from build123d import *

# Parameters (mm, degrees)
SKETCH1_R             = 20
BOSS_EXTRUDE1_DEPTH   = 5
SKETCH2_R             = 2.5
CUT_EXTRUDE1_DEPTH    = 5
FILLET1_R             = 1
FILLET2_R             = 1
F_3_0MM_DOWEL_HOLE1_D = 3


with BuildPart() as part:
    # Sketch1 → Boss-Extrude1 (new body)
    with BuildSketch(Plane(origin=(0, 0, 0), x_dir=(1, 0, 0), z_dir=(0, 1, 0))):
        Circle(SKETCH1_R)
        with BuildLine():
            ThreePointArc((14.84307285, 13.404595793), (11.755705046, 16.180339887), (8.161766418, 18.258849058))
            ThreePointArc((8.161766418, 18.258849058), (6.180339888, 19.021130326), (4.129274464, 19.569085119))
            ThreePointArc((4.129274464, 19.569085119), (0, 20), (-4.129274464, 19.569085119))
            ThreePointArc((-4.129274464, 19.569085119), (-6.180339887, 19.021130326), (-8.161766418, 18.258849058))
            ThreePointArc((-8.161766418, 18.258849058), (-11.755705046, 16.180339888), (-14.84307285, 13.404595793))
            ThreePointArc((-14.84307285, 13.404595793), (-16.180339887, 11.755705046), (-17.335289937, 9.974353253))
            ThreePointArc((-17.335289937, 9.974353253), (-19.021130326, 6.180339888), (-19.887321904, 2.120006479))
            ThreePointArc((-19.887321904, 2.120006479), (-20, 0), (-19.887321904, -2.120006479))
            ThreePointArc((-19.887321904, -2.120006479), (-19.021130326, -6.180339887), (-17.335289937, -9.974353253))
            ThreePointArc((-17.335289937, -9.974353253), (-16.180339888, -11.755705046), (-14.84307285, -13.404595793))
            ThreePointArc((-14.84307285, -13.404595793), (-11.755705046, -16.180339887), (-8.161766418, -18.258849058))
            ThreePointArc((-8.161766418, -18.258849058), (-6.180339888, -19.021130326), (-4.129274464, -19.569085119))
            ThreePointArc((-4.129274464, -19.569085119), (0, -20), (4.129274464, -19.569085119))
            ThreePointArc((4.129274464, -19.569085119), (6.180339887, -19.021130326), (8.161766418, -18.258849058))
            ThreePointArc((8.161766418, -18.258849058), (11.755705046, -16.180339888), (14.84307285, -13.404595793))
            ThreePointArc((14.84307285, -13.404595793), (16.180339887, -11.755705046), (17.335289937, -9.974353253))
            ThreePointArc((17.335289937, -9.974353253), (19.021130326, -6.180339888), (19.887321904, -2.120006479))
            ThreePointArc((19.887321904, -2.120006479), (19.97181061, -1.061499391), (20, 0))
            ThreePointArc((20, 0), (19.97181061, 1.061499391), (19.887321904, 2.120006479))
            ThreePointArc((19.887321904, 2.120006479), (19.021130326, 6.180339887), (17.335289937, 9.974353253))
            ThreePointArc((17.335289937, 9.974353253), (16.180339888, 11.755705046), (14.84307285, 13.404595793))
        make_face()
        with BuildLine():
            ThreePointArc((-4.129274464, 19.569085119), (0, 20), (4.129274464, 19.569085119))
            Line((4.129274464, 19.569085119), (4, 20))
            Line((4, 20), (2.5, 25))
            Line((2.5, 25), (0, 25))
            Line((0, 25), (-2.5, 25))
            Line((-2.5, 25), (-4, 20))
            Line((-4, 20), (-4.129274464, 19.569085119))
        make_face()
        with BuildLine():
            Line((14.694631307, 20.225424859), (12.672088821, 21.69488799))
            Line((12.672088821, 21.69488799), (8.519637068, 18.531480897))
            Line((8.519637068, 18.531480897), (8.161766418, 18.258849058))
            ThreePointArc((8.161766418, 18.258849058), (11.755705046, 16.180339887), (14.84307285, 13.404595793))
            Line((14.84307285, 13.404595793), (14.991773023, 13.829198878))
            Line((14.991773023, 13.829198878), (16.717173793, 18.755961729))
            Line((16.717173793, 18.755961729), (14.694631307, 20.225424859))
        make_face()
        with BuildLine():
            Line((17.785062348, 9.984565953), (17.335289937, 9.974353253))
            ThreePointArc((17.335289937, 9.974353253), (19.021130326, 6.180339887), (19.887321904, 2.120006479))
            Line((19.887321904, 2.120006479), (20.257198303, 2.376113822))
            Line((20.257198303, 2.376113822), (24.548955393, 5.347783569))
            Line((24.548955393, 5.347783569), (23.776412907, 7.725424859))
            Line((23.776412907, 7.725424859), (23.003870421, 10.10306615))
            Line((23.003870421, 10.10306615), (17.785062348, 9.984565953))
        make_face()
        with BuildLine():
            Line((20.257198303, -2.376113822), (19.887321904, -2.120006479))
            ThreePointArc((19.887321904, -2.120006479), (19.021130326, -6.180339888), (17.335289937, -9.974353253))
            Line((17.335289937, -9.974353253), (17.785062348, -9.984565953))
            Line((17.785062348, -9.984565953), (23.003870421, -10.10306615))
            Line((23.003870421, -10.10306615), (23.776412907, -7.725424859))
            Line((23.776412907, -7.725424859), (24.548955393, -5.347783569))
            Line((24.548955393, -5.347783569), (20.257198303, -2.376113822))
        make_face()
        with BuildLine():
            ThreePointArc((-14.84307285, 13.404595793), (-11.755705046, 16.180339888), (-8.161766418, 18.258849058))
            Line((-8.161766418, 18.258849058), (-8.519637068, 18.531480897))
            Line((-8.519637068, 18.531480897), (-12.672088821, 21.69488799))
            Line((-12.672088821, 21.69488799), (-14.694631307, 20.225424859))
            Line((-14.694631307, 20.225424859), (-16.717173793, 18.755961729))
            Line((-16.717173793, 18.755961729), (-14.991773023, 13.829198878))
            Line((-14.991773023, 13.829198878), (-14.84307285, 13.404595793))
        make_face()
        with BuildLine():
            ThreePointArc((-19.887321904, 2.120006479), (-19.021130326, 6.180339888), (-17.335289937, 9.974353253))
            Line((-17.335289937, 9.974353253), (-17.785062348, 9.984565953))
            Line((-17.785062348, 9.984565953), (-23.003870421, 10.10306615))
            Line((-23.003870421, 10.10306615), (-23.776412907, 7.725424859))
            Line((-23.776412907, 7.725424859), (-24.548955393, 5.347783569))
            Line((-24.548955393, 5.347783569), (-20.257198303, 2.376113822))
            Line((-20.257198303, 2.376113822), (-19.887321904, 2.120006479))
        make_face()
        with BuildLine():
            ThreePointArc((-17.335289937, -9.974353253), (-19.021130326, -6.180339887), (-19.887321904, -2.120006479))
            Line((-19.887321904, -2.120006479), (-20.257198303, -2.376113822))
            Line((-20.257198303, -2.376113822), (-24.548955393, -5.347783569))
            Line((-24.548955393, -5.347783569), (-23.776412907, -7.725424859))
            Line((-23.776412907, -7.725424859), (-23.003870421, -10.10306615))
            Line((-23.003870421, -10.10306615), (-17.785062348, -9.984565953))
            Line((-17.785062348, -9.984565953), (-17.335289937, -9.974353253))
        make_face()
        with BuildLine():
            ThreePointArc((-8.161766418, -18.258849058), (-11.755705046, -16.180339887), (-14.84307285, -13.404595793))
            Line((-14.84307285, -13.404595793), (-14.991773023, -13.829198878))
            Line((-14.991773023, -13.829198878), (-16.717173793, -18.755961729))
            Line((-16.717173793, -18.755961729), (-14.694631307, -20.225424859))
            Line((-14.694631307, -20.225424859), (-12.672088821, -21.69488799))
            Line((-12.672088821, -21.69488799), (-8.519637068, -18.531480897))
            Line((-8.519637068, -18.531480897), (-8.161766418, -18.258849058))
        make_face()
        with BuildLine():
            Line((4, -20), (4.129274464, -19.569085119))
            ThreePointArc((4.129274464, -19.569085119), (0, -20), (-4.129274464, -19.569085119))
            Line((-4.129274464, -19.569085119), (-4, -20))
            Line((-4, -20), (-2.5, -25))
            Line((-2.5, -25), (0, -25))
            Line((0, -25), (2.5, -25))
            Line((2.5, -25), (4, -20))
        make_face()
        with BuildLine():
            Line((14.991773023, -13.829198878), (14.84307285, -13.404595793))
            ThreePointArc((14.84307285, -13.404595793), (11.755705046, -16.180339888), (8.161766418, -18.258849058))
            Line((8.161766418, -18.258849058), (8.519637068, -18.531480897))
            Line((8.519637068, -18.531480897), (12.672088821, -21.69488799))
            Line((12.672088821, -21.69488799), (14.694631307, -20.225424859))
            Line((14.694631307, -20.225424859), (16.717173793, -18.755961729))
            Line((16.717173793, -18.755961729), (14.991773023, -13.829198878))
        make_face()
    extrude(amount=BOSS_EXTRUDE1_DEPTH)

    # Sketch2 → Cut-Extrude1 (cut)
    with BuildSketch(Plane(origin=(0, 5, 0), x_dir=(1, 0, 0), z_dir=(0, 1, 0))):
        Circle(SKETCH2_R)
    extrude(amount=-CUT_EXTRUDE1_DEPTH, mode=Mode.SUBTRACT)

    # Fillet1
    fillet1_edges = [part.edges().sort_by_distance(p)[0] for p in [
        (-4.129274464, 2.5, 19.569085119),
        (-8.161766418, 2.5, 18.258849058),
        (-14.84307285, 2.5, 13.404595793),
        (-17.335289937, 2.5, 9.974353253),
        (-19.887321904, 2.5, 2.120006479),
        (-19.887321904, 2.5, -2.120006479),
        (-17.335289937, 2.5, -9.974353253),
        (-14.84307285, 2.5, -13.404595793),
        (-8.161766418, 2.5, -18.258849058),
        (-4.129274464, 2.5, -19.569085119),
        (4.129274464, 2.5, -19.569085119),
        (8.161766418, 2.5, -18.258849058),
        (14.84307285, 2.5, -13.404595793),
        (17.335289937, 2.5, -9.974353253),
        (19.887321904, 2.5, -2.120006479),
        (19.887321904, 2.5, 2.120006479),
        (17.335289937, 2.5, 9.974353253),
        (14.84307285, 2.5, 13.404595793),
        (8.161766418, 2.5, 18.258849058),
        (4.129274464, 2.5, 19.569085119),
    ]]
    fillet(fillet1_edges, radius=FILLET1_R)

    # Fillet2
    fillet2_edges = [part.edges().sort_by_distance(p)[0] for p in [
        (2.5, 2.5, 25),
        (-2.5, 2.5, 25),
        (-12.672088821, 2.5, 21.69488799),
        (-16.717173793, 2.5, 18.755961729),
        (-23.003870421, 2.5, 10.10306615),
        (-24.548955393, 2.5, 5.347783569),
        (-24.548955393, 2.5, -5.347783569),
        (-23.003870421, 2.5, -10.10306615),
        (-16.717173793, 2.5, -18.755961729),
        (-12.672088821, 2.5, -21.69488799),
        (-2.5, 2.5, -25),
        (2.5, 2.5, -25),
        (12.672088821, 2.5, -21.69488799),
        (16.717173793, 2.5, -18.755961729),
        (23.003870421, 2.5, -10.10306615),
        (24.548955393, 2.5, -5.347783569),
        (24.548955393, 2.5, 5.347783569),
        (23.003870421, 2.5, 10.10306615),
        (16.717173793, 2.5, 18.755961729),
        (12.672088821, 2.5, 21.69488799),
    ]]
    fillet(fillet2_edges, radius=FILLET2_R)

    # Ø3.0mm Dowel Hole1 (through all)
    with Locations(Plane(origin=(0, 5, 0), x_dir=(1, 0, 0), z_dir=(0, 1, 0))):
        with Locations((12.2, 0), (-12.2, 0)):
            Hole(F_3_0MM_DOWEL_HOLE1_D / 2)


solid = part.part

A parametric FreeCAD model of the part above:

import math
import FreeCAD as App
import Part
import Sketcher
from FreeCAD import Vector
Q = App.Units.Quantity


def edges_at(feature, points):
    """Names of the edges that pass closest to the given points."""
    edges = feature.Shape.Edges
    near = lambda p: min(range(len(edges)), key=lambda i: edges[i].distToShape(Part.Vertex(*p))[0])
    return sorted({f"Edge{near(p) + 1}" for p in points})

doc = App.newDocument("Part")
params = doc.addObject("Spreadsheet::Sheet", "Params")
for row, (alias, value) in enumerate([
    ("sketch1_radius", "20 mm"),
    ("sketch1_width", "5 mm"),
    ("sketch1_length", "2.5 mm"),
    ("pad1_length", "5 mm"),
    ("sketch2_diameter", "5 mm"),
    ("pocket1_length", "5 mm"),
    ("fillet_radius", "1 mm"),
    ("fillet2_radius", "1 mm"),
    ("sketch3_diameter", "3 mm"),
    ("hole_diameter", "3 mm"),
], start=1):
    params.set(f"A{row}", alias)
    params.set(f"B{row}", "=" + value)
    params.setAlias(f"B{row}", alias)

body = doc.addObject("PartDesign::Body", "Body")

sketch1 = body.newObject("Sketcher::SketchObject", "Sketch")
sketch1.AttachmentSupport = (doc.getObject("XZ_Plane"), [""])
sketch1.MapMode = "FlatFace"
sketch1.addGeometry([
    Part.ArcOfCircle(Part.Circle(Vector(0, 0, 0), Vector(0, 0, 1), 20), math.radians(-42.08), math.radians(-29.92)),
    Part.LineSegment(Vector(14.84, -13.4, 0), Vector(14.99, -13.83, 0)),
    Part.LineSegment(Vector(14.99, -13.83, 0), Vector(16.72, -18.76, 0)),
    Part.LineSegment(Vector(16.72, -18.76, 0), Vector(14.69, -20.23, 0)),
    Part.LineSegment(Vector(14.69, -20.23, 0), Vector(12.67, -21.69, 0)),
    Part.LineSegment(Vector(12.67, -21.69, 0), Vector(8.52, -18.53, 0)),
    Part.LineSegment(Vector(8.52, -18.53, 0), Vector(8.16, -18.26, 0)),
    Part.ArcOfCircle(Part.Circle(Vector(0, 0, 0), Vector(0, 0, 1), 20), math.radians(-78.08), math.radians(-65.92)),
    Part.LineSegment(Vector(4.13, -19.57, 0), Vector(4, -20, 0)),
    Part.LineSegment(Vector(4, -20, 0), Vector(2.5, -25, 0)),
    Part.LineSegment(Vector(2.5, -25, 0), Vector(-2.5, -25, 0)),
    Part.LineSegment(Vector(-2.5, -25, 0), Vector(-4, -20, 0)),
    Part.LineSegment(Vector(-4, -20, 0), Vector(-4.13, -19.57, 0)),
    Part.ArcOfCircle(Part.Circle(Vector(0, 0, 0), Vector(0, 0, 1), 20), math.radians(-114.08), math.radians(-101.92)),
    Part.LineSegment(Vector(-8.16, -18.26, 0), Vector(-8.52, -18.53, 0)),
    Part.LineSegment(Vector(-8.52, -18.53, 0), Vector(-12.67, -21.69, 0)),
    Part.LineSegment(Vector(-12.67, -21.69, 0), Vector(-14.69, -20.23, 0)),
    Part.LineSegment(Vector(-14.69, -20.23, 0), Vector(-16.72, -18.76, 0)),
    Part.LineSegment(Vector(-16.72, -18.76, 0), Vector(-14.99, -13.83, 0)),
    Part.LineSegment(Vector(-14.99, -13.83, 0), Vector(-14.84, -13.4, 0)),
    Part.ArcOfCircle(Part.Circle(Vector(0, 0, 0), Vector(0, 0, 1), 20), math.radians(-150.08), math.radians(-137.92)),
    Part.LineSegment(Vector(-17.34, -9.97, 0), Vector(-17.79, -9.98, 0)),
    Part.LineSegment(Vector(-17.79, -9.98, 0), Vector(-23, -10.1, 0)),
    Part.LineSegment(Vector(-23, -10.1, 0), Vector(-23.78, -7.73, 0)),
    Part.LineSegment(Vector(-23.78, -7.73, 0), Vector(-24.55, -5.35, 0)),
    Part.LineSegment(Vector(-24.55, -5.35, 0), Vector(-20.26, -2.38, 0)),
    Part.LineSegment(Vector(-20.26, -2.38, 0), Vector(-19.89, -2.12, 0)),
    Part.ArcOfCircle(Part.Circle(Vector(0, 0, 0), Vector(0, 0, 1), 20), math.radians(173.92), math.radians(186.08)),
    Part.LineSegment(Vector(-19.89, 2.12, 0), Vector(-20.26, 2.38, 0)),
    Part.LineSegment(Vector(-20.26, 2.38, 0), Vector(-24.55, 5.35, 0)),
    Part.LineSegment(Vector(-24.55, 5.35, 0), Vector(-23.78, 7.73, 0)),
    Part.LineSegment(Vector(-23.78, 7.73, 0), Vector(-23, 10.1, 0)),
    Part.LineSegment(Vector(-23, 10.1, 0), Vector(-17.79, 9.98, 0)),
    Part.LineSegment(Vector(-17.79, 9.98, 0), Vector(-17.34, 9.97, 0)),
    Part.ArcOfCircle(Part.Circle(Vector(0, 0, 0), Vector(0, 0, 1), 20), math.radians(137.92), math.radians(150.08)),
    Part.LineSegment(Vector(-14.84, 13.4, 0), Vector(-14.99, 13.83, 0)),
    Part.LineSegment(Vector(-14.99, 13.83, 0), Vector(-16.72, 18.76, 0)),
    Part.LineSegment(Vector(-16.72, 18.76, 0), Vector(-14.69, 20.23, 0)),
    Part.LineSegment(Vector(-14.69, 20.23, 0), Vector(-12.67, 21.69, 0)),
    Part.LineSegment(Vector(-12.67, 21.69, 0), Vector(-8.52, 18.53, 0)),
    Part.LineSegment(Vector(-8.52, 18.53, 0), Vector(-8.16, 18.26, 0)),
    Part.ArcOfCircle(Part.Circle(Vector(0, 0, 0), Vector(0, 0, 1), 20), math.radians(101.92), math.radians(114.08)),
    Part.LineSegment(Vector(-4.13, 19.57, 0), Vector(-4, 20, 0)),
    Part.LineSegment(Vector(-4, 20, 0), Vector(-2.5, 25, 0)),
    Part.LineSegment(Vector(-2.5, 25, 0), Vector(2.5, 25, 0)),
    Part.LineSegment(Vector(2.5, 25, 0), Vector(4, 20, 0)),
    Part.LineSegment(Vector(4, 20, 0), Vector(4.13, 19.57, 0)),
    Part.ArcOfCircle(Part.Circle(Vector(0, 0, 0), Vector(0, 0, 1), 20), math.radians(65.92), math.radians(78.08)),
    Part.LineSegment(Vector(8.16, 18.26, 0), Vector(8.52, 18.53, 0)),
    Part.LineSegment(Vector(8.52, 18.53, 0), Vector(12.67, 21.69, 0)),
    Part.LineSegment(Vector(12.67, 21.69, 0), Vector(14.69, 20.23, 0)),
    Part.LineSegment(Vector(14.69, 20.23, 0), Vector(16.72, 18.76, 0)),
    Part.LineSegment(Vector(16.72, 18.76, 0), Vector(14.99, 13.83, 0)),
    Part.LineSegment(Vector(14.99, 13.83, 0), Vector(14.84, 13.4, 0)),
    Part.ArcOfCircle(Part.Circle(Vector(0, 0, 0), Vector(0, 0, 1), 20), math.radians(29.92), math.radians(42.08)),
    Part.LineSegment(Vector(17.34, 9.97, 0), Vector(17.79, 9.98, 0)),
    Part.LineSegment(Vector(17.79, 9.98, 0), Vector(23, 10.1, 0)),
    Part.LineSegment(Vector(23, 10.1, 0), Vector(23.78, 7.73, 0)),
    Part.LineSegment(Vector(23.78, 7.73, 0), Vector(24.55, 5.35, 0)),
    Part.LineSegment(Vector(24.55, 5.35, 0), Vector(20.26, 2.38, 0)),
    Part.LineSegment(Vector(20.26, 2.38, 0), Vector(19.89, 2.12, 0)),
    Part.ArcOfCircle(Part.Circle(Vector(0, 0, 0), Vector(0, 0, 1), 20), math.radians(-6.08), math.radians(6.08)),
    Part.LineSegment(Vector(19.89, -2.12, 0), Vector(20.26, -2.38, 0)),
    Part.LineSegment(Vector(20.26, -2.38, 0), Vector(24.55, -5.35, 0)),
    Part.LineSegment(Vector(24.55, -5.35, 0), Vector(23.78, -7.73, 0)),
    Part.LineSegment(Vector(23.78, -7.73, 0), Vector(23, -10.1, 0)),
    Part.LineSegment(Vector(23, -10.1, 0), Vector(17.79, -9.98, 0)),
    Part.LineSegment(Vector(17.79, -9.98, 0), Vector(17.34, -9.97, 0)),
], False)
sketch1.addConstraint([
    Sketcher.Constraint("Coincident", 0, 1, 1, 1),
    Sketcher.Constraint("Coincident", 1, 2, 2, 1),
    Sketcher.Constraint("Coincident", 2, 2, 3, 1),
    Sketcher.Constraint("Coincident", 3, 2, 4, 1),
    Sketcher.Constraint("Coincident", 4, 2, 5, 1),
    Sketcher.Constraint("Coincident", 5, 2, 6, 1),
    Sketcher.Constraint("Coincident", 6, 2, 7, 2),
    Sketcher.Constraint("Coincident", 7, 1, 8, 1),
    Sketcher.Constraint("Coincident", 8, 2, 9, 1),
    Sketcher.Constraint("Coincident", 9, 2, 10, 1),
    Sketcher.Constraint("Coincident", 10, 2, 11, 1),
    Sketcher.Constraint("Coincident", 11, 2, 12, 1),
    Sketcher.Constraint("Coincident", 12, 2, 13, 2),
    Sketcher.Constraint("Coincident", 13, 1, 14, 1),
    Sketcher.Constraint("Coincident", 14, 2, 15, 1),
    Sketcher.Constraint("Coincident", 15, 2, 16, 1),
    Sketcher.Constraint("Coincident", 16, 2, 17, 1),
    Sketcher.Constraint("Coincident", 17, 2, 18, 1),
    Sketcher.Constraint("Coincident", 18, 2, 19, 1),
    Sketcher.Constraint("Coincident", 19, 2, 20, 2),
    Sketcher.Constraint("Coincident", 20, 1, 21, 1),
    Sketcher.Constraint("Coincident", 21, 2, 22, 1),
    Sketcher.Constraint("Coincident", 22, 2, 23, 1),
    Sketcher.Constraint("Coincident", 23, 2, 24, 1),
    Sketcher.Constraint("Coincident", 24, 2, 25, 1),
    Sketcher.Constraint("Coincident", 25, 2, 26, 1),
    Sketcher.Constraint("Coincident", 26, 2, 27, 2),
    Sketcher.Constraint("Coincident", 27, 1, 28, 1),
    Sketcher.Constraint("Coincident", 28, 2, 29, 1),
    Sketcher.Constraint("Coincident", 29, 2, 30, 1),
    Sketcher.Constraint("Coincident", 30, 2, 31, 1),
    Sketcher.Constraint("Coincident", 31, 2, 32, 1),
    Sketcher.Constraint("Coincident", 32, 2, 33, 1),
    Sketcher.Constraint("Coincident", 33, 2, 34, 2),
    Sketcher.Constraint("Coincident", 34, 1, 35, 1),
    Sketcher.Constraint("Coincident", 35, 2, 36, 1),
    Sketcher.Constraint("Coincident", 36, 2, 37, 1),
    Sketcher.Constraint("Coincident", 37, 2, 38, 1),
    Sketcher.Constraint("Coincident", 38, 2, 39, 1),
    Sketcher.Constraint("Coincident", 39, 2, 40, 1),
    Sketcher.Constraint("Coincident", 40, 2, 41, 2),
    Sketcher.Constraint("Coincident", 41, 1, 42, 1),
    Sketcher.Constraint("Coincident", 42, 2, 43, 1),
    Sketcher.Constraint("Coincident", 43, 2, 44, 1),
    Sketcher.Constraint("Coincident", 44, 2, 45, 1),
    Sketcher.Constraint("Coincident", 45, 2, 46, 1),
    Sketcher.Constraint("Coincident", 46, 2, 47, 2),
    Sketcher.Constraint("Coincident", 47, 1, 48, 1),
    Sketcher.Constraint("Coincident", 48, 2, 49, 1),
    Sketcher.Constraint("Coincident", 49, 2, 50, 1),
    Sketcher.Constraint("Coincident", 50, 2, 51, 1),
    Sketcher.Constraint("Coincident", 51, 2, 52, 1),
    Sketcher.Constraint("Coincident", 52, 2, 53, 1),
    Sketcher.Constraint("Coincident", 53, 2, 54, 2),
    Sketcher.Constraint("Coincident", 54, 1, 55, 1),
    Sketcher.Constraint("Coincident", 55, 2, 56, 1),
    Sketcher.Constraint("Coincident", 56, 2, 57, 1),
    Sketcher.Constraint("Coincident", 57, 2, 58, 1),
    Sketcher.Constraint("Coincident", 58, 2, 59, 1),
    Sketcher.Constraint("Coincident", 59, 2, 60, 1),
    Sketcher.Constraint("Coincident", 60, 2, 61, 2),
    Sketcher.Constraint("Coincident", 61, 1, 62, 1),
    Sketcher.Constraint("Coincident", 62, 2, 63, 1),
    Sketcher.Constraint("Coincident", 63, 2, 64, 1),
    Sketcher.Constraint("Coincident", 64, 2, 65, 1),
    Sketcher.Constraint("Coincident", 65, 2, 66, 1),
    Sketcher.Constraint("Coincident", 66, 2, 67, 1),
    Sketcher.Constraint("Coincident", 67, 2, 0, 2),
    Sketcher.Constraint("Horizontal", 10),
    Sketcher.Constraint("Horizontal", 44),
    Sketcher.Constraint("Coincident", 0, 3, -1, 1),
    Sketcher.Constraint("Coincident", 7, 3, -1, 1),
    Sketcher.Constraint("Coincident", 13, 3, -1, 1),
    Sketcher.Constraint("Coincident", 20, 3, -1, 1),
    Sketcher.Constraint("Coincident", 27, 3, -1, 1),
    Sketcher.Constraint("Coincident", 34, 3, -1, 1),
    Sketcher.Constraint("Coincident", 41, 3, -1, 1),
    Sketcher.Constraint("Coincident", 47, 3, -1, 1),
    Sketcher.Constraint("Coincident", 54, 3, -1, 1),
    Sketcher.Constraint("Coincident", 61, 3, -1, 1),
    Sketcher.Constraint("Equal", 0, 7),
    Sketcher.Constraint("Equal", 7, 13),
    Sketcher.Constraint("Equal", 13, 20),
    Sketcher.Constraint("Equal", 20, 27),
    Sketcher.Constraint("Equal", 27, 34),
    Sketcher.Constraint("Equal", 34, 41),
    Sketcher.Constraint("Equal", 41, 47),
    Sketcher.Constraint("Equal", 47, 54),
    Sketcher.Constraint("Equal", 54, 61),
    Sketcher.Constraint("Symmetric", 1, 2, 35, 2, -1, 1),
    Sketcher.Constraint("Symmetric", 2, 2, 36, 2, -1, 1),
    Sketcher.Constraint("Symmetric", 3, 2, 37, 2, -1, 1),
    Sketcher.Constraint("Symmetric", 4, 2, 38, 2, -1, 1),
    Sketcher.Constraint("Symmetric", 5, 2, 39, 2, -1, 1),
    Sketcher.Constraint("Symmetric", 8, 2, 42, 2, -1, 1),
    Sketcher.Constraint("Symmetric", 9, 2, 43, 2, -1, 1),
    Sketcher.Constraint("Symmetric", 11, 2, 45, 2, -1, 1),
    Sketcher.Constraint("Symmetric", 14, 2, 48, 2, -1, 1),
    Sketcher.Constraint("Symmetric", 15, 2, 49, 2, -1, 1),
    Sketcher.Constraint("Symmetric", 16, 2, 50, 2, -1, 1),
    Sketcher.Constraint("Symmetric", 17, 2, 51, 2, -1, 1),
    Sketcher.Constraint("Symmetric", 18, 2, 52, 2, -1, 1),
    Sketcher.Constraint("Symmetric", 21, 2, 55, 2, -1, 1),
    Sketcher.Constraint("Symmetric", 22, 2, 56, 2, -1, 1),
    Sketcher.Constraint("Symmetric", 23, 2, 57, 2, -1, 1),
    Sketcher.Constraint("Symmetric", 24, 2, 58, 2, -1, 1),
    Sketcher.Constraint("Symmetric", 25, 2, 59, 2, -1, 1),
    Sketcher.Constraint("Symmetric", 28, 2, 62, 2, -1, 1),
    Sketcher.Constraint("Symmetric", 29, 2, 63, 2, -1, 1),
    Sketcher.Constraint("Symmetric", 30, 2, 64, 2, -1, 1),
    Sketcher.Constraint("Symmetric", 31, 2, 65, 2, -1, 1),
    Sketcher.Constraint("Symmetric", 32, 2, 66, 2, -1, 1),
    Sketcher.Constraint("Symmetric", 8, 2, 11, 2, -2),
    Sketcher.Constraint("Symmetric", 5, 2, 14, 2, -2),
    Sketcher.Constraint("Symmetric", 4, 2, 15, 2, -2),
    Sketcher.Constraint("Symmetric", 3, 2, 16, 2, -2),
    Sketcher.Constraint("Symmetric", 2, 2, 17, 2, -2),
    Sketcher.Constraint("Symmetric", 1, 2, 18, 2, -2),
    Sketcher.Constraint("Symmetric", 32, 2, 55, 2, -2),
    Sketcher.Constraint("Symmetric", 31, 2, 56, 2, -2),
    Sketcher.Constraint("Symmetric", 30, 2, 57, 2, -2),
    Sketcher.Constraint("Symmetric", 29, 2, 58, 2, -2),
    Sketcher.Constraint("Symmetric", 28, 2, 59, 2, -2),
    Sketcher.Constraint("Parallel", 1, 2),
    Sketcher.Constraint("Parallel", 3, 4),
    Sketcher.Constraint("Parallel", 5, 6),
    Sketcher.Constraint("Parallel", 8, 9),
    Sketcher.Constraint("Parallel", 11, 12),
    Sketcher.Constraint("Parallel", 14, 15),
    Sketcher.Constraint("Parallel", 18, 19),
    Sketcher.Constraint("Parallel", 21, 22),
    Sketcher.Constraint("Parallel", 23, 24),
    Sketcher.Constraint("Parallel", 25, 26),
    Sketcher.Constraint("Parallel", 28, 29),
    Sketcher.Constraint("Parallel", 32, 33),
    Sketcher.Constraint("Parallel", 2, 35),
    Sketcher.Constraint("Parallel", 39, 40),
    Sketcher.Constraint("Parallel", 9, 42),
    Sketcher.Constraint("Parallel", 12, 45),
    Sketcher.Constraint("Parallel", 45, 46),
    Sketcher.Constraint("Parallel", 15, 48),
    Sketcher.Constraint("Parallel", 52, 53),
    Sketcher.Constraint("Parallel", 22, 55),
    Sketcher.Constraint("Parallel", 59, 60),
    Sketcher.Constraint("Parallel", 29, 62),
    Sketcher.Constraint("Parallel", 66, 67),
    Sketcher.Constraint("Horizontal", 7, 1, 12, 2),
    Sketcher.Constraint("Equal", 3, 4),
    Sketcher.Constraint("Equal", 2, 5),
    Sketcher.Constraint("Equal", 1, 6),
    Sketcher.Constraint("Equal", 6, 8),
    Sketcher.Constraint("Equal", 5, 9),
    Sketcher.Constraint("Equal", 19, 21),
    Sketcher.Constraint("Equal", 18, 22),
    Sketcher.Constraint("Equal", 17, 23),
    Sketcher.Constraint("Equal", 23, 24),
    Sketcher.Constraint("Equal", 22, 25),
    Sketcher.Constraint("Equal", 21, 26),
    Sketcher.Constraint("Radius", 0, 20.0),
    Sketcher.Constraint("DistanceX", 10, 2, 10, 1, 5.0),
    Sketcher.Constraint("Angle", 3, Q("-144 deg")),
    Sketcher.Constraint("Angle", 23, Q("108 deg")),
    Sketcher.Constraint("DistanceX", -1, 1, 8, 2, 4.0),
    Sketcher.Constraint("DistanceY", 8, 2, -1, 1, 20.0),
    Sketcher.Constraint("DistanceY", 9, 2, -1, 1, 25.0),
    Sketcher.Constraint("Distance", 3, 2.5),
    Sketcher.Constraint("DistanceY", 1, 2, -1, 1, 13.829199),
    Sketcher.Constraint("DistanceX", 25, 2, -1, 1, 20.257198),
    Sketcher.Constraint("DistanceY", 2, 2, -1, 1, 18.755962),
    Sketcher.Constraint("DistanceX", 20, 1, -1, 1, 17.33529),
])
sketch1.setExpression("Constraints[158]", "Params.sketch1_radius")
sketch1.setExpression("Constraints[159]", "Params.sketch1_width")
sketch1.setExpression("Constraints[165]", "Params.sketch1_length")
pad1 = body.newObject("PartDesign::Pad", "Pad")
pad1.Profile = sketch1
pad1.setExpression("Length", "Params.pad1_length")
pad1.Reversed = True

sketch2 = body.newObject("Sketcher::SketchObject", "Sketch001")
sketch2.AttachmentSupport = (doc.getObject("XZ_Plane"), [""])
sketch2.MapMode = "FlatFace"
sketch2.AttachmentOffset = App.Placement(Vector(0, 0, -5), App.Rotation())
sketch2.addGeometry(Part.Circle(Vector(0, 0, 0), Vector(0, 0, 1), 2.5), False)
sketch2.addConstraint([
    Sketcher.Constraint("Coincident", 0, 3, -1, 1),
    Sketcher.Constraint("Diameter", 0, 5.0),
])
sketch2.setExpression("Constraints[1]", "Params.sketch2_diameter")
pocket1 = body.newObject("PartDesign::Pocket", "Pocket")
pocket1.Profile = sketch2
pocket1.setExpression("Length", "Params.pocket1_length")
pocket1.Reversed = True
doc.recompute()

fillet = body.newObject("PartDesign::Fillet", "Fillet")
fillet.Base = (pocket1, edges_at(pocket1, [
    (-4.129, 2.5, 19.569),
    (-8.162, 2.5, 18.259),
    (-14.843, 2.5, 13.405),
    (-17.335, 2.5, 9.974),
    (-19.887, 2.5, 2.12),
    (-19.887, 2.5, -2.12),
    (-17.335, 2.5, -9.974),
    (-14.843, 2.5, -13.405),
    (-8.162, 2.5, -18.259),
    (-4.129, 2.5, -19.569),
    (4.129, 2.5, -19.569),
    (8.162, 2.5, -18.259),
    (14.843, 2.5, -13.405),
    (17.335, 2.5, -9.974),
    (19.887, 2.5, -2.12),
    (19.887, 2.5, 2.12),
    (17.335, 2.5, 9.974),
    (14.843, 2.5, 13.405),
    (8.162, 2.5, 18.259),
    (4.129, 2.5, 19.569),
]))
fillet.setExpression("Radius", "Params.fillet_radius")
doc.recompute()

fillet2 = body.newObject("PartDesign::Fillet", "Fillet001")
fillet2.Base = (fillet, edges_at(fillet, [
    (2.5, 2.5, 25),
    (-2.5, 2.5, 25),
    (-12.672, 2.5, 21.695),
    (-16.717, 2.5, 18.756),
    (-23.004, 2.5, 10.103),
    (-24.549, 2.5, 5.348),
    (-24.549, 2.5, -5.348),
    (-23.004, 2.5, -10.103),
    (-16.717, 2.5, -18.756),
    (-12.672, 2.5, -21.695),
    (-2.5, 2.5, -25),
    (2.5, 2.5, -25),
    (12.672, 2.5, -21.695),
    (16.717, 2.5, -18.756),
    (23.004, 2.5, -10.103),
    (24.549, 2.5, -5.348),
    (24.549, 2.5, 5.348),
    (23.004, 2.5, 10.103),
    (16.717, 2.5, 18.756),
    (12.672, 2.5, 21.695),
]))
fillet2.setExpression("Radius", "Params.fillet2_radius")

sketch3 = body.newObject("Sketcher::SketchObject", "Sketch002")
sketch3.AttachmentSupport = (doc.getObject("XZ_Plane"), [""])
sketch3.MapMode = "FlatFace"
sketch3.AttachmentOffset = App.Placement(Vector(0, 0, -5), App.Rotation())
sketch3.addGeometry([
    Part.Circle(Vector(12.2, 0, 0), Vector(0, 0, 1), 1.5),
    Part.Circle(Vector(-12.2, 0, 0), Vector(0, 0, 1), 1.5),
], False)
sketch3.addConstraint([
    Sketcher.Constraint("Equal", 0, 1),
    Sketcher.Constraint("Symmetric", 0, 3, 1, 3, -1, 1),
    Sketcher.Constraint("PointOnObject", 0, 3, -1),
    Sketcher.Constraint("Diameter", 0, 3.0),
    Sketcher.Constraint("DistanceX", -1, 1, 0, 3, 12.2),
])
sketch3.setExpression("Constraints[3]", "Params.sketch3_diameter")
doc.recompute()
hole = body.newObject("PartDesign::Hole", "Hole")
hole.Profile = sketch3
hole.ThreadType = "None"
hole.setExpression("Diameter", "Params.hole_diameter")
hole.DepthType = "ThroughAll"
hole.Reversed = True

doc.recompute()
